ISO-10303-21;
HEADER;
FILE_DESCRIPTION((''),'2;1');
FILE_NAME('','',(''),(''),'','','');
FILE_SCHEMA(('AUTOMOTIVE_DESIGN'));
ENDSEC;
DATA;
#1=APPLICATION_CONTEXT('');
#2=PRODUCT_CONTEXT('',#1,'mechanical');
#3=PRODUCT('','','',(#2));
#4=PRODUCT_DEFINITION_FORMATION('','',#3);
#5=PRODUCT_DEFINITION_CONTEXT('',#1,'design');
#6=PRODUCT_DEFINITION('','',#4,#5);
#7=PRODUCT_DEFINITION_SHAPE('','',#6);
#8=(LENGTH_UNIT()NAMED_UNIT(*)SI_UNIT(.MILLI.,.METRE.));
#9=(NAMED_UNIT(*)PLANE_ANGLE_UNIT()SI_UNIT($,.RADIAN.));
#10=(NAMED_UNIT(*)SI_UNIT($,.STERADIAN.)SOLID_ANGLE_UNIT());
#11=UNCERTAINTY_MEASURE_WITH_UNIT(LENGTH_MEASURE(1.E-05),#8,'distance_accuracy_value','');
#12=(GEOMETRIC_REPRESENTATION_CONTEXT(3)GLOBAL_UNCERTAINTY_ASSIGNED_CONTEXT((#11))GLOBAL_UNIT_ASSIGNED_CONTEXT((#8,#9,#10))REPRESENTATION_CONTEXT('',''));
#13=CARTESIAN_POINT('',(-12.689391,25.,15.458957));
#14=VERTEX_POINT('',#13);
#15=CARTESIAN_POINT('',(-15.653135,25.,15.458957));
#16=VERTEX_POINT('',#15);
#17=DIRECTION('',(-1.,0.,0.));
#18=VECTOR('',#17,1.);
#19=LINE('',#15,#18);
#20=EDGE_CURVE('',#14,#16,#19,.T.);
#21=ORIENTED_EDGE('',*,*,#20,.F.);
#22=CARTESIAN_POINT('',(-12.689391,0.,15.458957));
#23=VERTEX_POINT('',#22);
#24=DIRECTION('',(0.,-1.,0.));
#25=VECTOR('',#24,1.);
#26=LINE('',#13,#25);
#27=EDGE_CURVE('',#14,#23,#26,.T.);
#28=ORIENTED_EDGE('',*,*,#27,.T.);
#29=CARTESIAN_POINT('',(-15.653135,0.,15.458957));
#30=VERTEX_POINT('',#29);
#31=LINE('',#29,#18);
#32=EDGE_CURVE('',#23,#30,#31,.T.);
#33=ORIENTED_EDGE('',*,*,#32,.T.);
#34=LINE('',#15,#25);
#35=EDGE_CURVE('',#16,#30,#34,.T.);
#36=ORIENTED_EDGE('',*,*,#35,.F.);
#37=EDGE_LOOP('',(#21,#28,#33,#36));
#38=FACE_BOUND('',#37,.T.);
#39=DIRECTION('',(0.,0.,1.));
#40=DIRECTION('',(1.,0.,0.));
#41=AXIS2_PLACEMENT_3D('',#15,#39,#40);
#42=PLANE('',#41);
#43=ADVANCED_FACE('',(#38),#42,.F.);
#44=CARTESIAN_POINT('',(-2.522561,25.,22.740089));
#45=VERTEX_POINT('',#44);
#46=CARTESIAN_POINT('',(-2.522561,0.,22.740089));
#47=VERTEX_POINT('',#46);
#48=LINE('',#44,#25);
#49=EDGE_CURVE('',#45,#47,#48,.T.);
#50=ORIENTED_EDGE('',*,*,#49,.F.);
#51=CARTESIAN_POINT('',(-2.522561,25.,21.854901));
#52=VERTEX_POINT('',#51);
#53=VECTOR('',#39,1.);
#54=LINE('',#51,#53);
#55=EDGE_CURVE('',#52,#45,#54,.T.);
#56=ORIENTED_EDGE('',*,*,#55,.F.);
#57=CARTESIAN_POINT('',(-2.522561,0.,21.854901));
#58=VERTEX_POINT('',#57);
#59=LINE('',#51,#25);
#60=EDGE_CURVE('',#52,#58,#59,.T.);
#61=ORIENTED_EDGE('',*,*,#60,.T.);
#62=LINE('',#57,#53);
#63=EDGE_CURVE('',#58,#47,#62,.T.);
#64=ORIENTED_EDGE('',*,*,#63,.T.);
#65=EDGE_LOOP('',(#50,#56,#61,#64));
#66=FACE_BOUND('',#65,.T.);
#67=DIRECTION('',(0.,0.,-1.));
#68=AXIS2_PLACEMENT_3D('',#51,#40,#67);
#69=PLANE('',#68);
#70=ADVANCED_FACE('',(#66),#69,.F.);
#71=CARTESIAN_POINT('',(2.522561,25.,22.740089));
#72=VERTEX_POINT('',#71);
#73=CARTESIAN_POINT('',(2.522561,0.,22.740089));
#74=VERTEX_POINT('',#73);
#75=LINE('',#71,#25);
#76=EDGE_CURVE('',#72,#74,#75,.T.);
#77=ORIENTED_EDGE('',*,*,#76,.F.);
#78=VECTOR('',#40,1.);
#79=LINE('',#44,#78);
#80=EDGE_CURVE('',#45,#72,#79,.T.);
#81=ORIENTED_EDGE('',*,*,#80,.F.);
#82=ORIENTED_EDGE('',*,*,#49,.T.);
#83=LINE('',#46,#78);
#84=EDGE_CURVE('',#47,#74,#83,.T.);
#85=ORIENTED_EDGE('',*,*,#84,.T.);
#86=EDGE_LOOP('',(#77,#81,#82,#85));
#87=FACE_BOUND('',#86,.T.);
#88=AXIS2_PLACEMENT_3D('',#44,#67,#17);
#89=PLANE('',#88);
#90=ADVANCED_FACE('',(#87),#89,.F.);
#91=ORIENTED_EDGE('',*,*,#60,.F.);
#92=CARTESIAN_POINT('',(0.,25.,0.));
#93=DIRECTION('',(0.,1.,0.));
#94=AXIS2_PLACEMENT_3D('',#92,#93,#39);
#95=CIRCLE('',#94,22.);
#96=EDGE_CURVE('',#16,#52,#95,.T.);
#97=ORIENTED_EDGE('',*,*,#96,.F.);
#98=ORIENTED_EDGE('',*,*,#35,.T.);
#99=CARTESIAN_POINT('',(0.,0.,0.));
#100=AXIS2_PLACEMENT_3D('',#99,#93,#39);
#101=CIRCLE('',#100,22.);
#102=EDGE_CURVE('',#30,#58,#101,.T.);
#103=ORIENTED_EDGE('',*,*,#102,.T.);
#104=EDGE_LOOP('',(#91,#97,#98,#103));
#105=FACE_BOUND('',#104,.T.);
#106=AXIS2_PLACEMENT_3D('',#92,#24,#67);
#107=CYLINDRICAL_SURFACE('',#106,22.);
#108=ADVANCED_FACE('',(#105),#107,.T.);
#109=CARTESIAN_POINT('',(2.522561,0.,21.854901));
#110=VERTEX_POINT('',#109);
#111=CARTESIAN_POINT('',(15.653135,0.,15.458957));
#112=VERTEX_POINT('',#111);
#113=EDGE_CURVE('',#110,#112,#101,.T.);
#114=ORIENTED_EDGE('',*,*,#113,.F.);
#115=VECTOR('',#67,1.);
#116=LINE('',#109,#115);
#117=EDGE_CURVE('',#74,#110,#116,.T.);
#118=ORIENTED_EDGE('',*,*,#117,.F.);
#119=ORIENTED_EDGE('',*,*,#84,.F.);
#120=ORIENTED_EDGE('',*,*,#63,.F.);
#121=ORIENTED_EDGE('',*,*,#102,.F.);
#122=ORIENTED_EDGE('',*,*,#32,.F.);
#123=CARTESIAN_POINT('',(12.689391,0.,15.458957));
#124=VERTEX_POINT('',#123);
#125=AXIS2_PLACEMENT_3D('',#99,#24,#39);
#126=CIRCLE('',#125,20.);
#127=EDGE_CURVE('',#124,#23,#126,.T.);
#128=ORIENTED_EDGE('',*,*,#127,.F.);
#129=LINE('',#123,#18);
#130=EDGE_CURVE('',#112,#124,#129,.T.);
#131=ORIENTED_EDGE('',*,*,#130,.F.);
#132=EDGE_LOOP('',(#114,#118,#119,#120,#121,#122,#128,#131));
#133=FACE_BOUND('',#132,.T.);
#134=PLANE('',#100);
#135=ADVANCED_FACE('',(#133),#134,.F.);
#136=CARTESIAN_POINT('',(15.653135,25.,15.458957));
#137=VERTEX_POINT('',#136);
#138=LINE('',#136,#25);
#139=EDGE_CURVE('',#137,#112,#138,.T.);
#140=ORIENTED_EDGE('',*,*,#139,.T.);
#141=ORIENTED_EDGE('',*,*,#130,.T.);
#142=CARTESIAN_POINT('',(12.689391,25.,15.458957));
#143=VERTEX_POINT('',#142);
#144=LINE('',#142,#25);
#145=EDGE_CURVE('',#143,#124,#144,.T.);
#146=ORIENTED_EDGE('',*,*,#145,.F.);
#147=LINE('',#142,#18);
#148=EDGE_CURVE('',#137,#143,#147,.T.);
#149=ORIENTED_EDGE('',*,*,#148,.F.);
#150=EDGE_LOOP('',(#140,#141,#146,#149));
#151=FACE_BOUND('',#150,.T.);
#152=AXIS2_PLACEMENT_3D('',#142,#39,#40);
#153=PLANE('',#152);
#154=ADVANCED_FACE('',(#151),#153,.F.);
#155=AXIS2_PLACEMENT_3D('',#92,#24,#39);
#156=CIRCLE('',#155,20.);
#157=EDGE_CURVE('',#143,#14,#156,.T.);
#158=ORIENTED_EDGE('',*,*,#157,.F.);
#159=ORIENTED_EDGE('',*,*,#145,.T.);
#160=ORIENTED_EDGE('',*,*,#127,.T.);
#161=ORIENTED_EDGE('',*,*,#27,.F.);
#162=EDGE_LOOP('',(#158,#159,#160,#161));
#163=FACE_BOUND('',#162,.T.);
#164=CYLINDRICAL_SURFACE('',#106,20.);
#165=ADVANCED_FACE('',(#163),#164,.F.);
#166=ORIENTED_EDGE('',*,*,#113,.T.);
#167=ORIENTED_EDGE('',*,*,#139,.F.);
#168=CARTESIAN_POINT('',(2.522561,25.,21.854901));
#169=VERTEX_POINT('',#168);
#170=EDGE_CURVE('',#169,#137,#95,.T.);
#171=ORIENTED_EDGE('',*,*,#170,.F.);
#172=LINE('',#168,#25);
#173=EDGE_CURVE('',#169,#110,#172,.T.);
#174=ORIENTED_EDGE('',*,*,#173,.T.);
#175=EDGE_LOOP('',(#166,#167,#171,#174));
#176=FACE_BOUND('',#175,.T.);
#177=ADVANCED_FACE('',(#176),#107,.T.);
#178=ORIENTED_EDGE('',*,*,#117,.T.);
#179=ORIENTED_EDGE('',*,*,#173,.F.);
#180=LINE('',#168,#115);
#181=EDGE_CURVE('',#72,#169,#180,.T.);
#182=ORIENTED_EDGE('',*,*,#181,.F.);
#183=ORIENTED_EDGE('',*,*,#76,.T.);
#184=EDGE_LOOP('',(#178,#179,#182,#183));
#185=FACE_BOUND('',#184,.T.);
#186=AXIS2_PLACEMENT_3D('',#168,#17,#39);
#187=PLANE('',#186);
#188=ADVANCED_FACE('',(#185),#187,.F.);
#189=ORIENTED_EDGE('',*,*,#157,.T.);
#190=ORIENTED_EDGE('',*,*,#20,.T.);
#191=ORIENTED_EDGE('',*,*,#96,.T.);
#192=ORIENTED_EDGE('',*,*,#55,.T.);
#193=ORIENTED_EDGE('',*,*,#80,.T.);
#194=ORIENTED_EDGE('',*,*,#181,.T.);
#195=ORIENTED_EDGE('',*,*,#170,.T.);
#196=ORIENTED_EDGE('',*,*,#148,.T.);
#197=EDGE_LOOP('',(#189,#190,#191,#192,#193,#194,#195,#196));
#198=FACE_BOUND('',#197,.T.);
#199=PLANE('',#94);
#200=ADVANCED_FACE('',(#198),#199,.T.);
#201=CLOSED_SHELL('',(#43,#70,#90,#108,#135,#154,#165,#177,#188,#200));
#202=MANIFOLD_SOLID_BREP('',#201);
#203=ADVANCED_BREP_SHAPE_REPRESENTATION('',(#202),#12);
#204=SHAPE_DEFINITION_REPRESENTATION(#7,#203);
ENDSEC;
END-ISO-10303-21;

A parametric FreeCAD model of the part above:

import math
import FreeCAD as App
import Part
import Sketcher

V = App.Vector
Q = App.Units.Quantity

doc = App.newDocument("Part")
params = doc.addObject("Spreadsheet::Sheet", "Params")
for row, (alias, value) in enumerate([
    ("sketch1_radius", "22 mm"),
    ("sketch1_radius2", "20 mm"),
    ("pad1_length", "25 mm"),
], start=1):
    params.set(f"A{row}", alias)
    params.set(f"B{row}", "=" + value)
    params.setAlias(f"B{row}", alias)

body = doc.addObject("PartDesign::Body", "Body")

sketch1 = body.newObject("Sketcher::SketchObject", "Sketch")
sketch1.AttachmentSupport = (doc.getObject("XZ_Plane"), [""])
sketch1.MapMode = "FlatFace"
sketch1.addGeometry([
    Part.LineSegment(V(-12.689391, 15.458957, 0), V(-15.653135, 15.458957, 0)),
    Part.ArcOfCircle(Part.Circle(V(0, 0, 0), V(0, 0, 1), 22), math.radians(96.584124), math.radians(135.357592)),
    Part.LineSegment(V(-2.522561, 21.854901, 0), V(-2.522561, 22.740089, 0)),
    Part.LineSegment(V(-2.522561, 22.740089, 0), V(2.522561, 22.740089, 0)),
    Part.LineSegment(V(2.522561, 22.740089, 0), V(2.522561, 21.854901, 0)),
    Part.ArcOfCircle(Part.Circle(V(0, 0, 0), V(0, 0, 1), 22), math.radians(44.642408), math.radians(83.415876)),
    Part.LineSegment(V(15.653135, 15.458957, 0), V(12.689391, 15.458957, 0)),
    Part.ArcOfCircle(Part.Circle(V(0, 0, 0), V(0, 0, 1), 20), math.radians(50.619347), math.radians(129.380653)),
], False)
sketch1.addConstraint([
    Sketcher.Constraint("Coincident", 0, 2, 1, 2),
    Sketcher.Constraint("Coincident", 1, 1, 2, 1),
    Sketcher.Constraint("Coincident", 2, 2, 3, 1),
    Sketcher.Constraint("Coincident", 3, 2, 4, 1),
    Sketcher.Constraint("Coincident", 4, 2, 5, 2),
    Sketcher.Constraint("Coincident", 5, 1, 6, 1),
    Sketcher.Constraint("Coincident", 6, 2, 7, 1),
    Sketcher.Constraint("Coincident", 7, 2, 0, 1),
    Sketcher.Constraint("Horizontal", 0),
    Sketcher.Constraint("Vertical", 2),
    Sketcher.Constraint("Horizontal", 3),
    Sketcher.Constraint("Vertical", 4),
    Sketcher.Constraint("Horizontal", 6),
    Sketcher.Constraint("Coincident", 1, 3, -1, 1),
    Sketcher.Constraint("Coincident", 5, 3, -1, 1),
    Sketcher.Constraint("Coincident", 7, 3, -1, 1),
    Sketcher.Constraint("Equal", 1, 5),
    Sketcher.Constraint("Horizontal", 1, 1, 4, 2),
    Sketcher.Constraint("Horizontal", 0, 2, 5, 1),
    Sketcher.Constraint("Radius", 1, Q("22 mm")),
    Sketcher.Constraint("Radius", 7, Q("20 mm")),
    Sketcher.Constraint("DistanceY", 2, 1, 2, 2, Q("0.885189 mm")),
    Sketcher.Constraint("DistanceY", -1, 1, 1, 1, Q("21.854901 mm")),
    Sketcher.Constraint("DistanceX", 0, 2, 0, 1, Q("2.963744 mm")),
])
sketch1.setExpression("Constraints[19]", "Params.sketch1_radius")
sketch1.setExpression("Constraints[20]", "Params.sketch1_radius2")
pad1 = body.newObject("PartDesign::Pad", "Pad")
pad1.Profile = sketch1
pad1.setExpression("Length", "Params.pad1_length")
pad1.Reversed = True

doc.recompute()
